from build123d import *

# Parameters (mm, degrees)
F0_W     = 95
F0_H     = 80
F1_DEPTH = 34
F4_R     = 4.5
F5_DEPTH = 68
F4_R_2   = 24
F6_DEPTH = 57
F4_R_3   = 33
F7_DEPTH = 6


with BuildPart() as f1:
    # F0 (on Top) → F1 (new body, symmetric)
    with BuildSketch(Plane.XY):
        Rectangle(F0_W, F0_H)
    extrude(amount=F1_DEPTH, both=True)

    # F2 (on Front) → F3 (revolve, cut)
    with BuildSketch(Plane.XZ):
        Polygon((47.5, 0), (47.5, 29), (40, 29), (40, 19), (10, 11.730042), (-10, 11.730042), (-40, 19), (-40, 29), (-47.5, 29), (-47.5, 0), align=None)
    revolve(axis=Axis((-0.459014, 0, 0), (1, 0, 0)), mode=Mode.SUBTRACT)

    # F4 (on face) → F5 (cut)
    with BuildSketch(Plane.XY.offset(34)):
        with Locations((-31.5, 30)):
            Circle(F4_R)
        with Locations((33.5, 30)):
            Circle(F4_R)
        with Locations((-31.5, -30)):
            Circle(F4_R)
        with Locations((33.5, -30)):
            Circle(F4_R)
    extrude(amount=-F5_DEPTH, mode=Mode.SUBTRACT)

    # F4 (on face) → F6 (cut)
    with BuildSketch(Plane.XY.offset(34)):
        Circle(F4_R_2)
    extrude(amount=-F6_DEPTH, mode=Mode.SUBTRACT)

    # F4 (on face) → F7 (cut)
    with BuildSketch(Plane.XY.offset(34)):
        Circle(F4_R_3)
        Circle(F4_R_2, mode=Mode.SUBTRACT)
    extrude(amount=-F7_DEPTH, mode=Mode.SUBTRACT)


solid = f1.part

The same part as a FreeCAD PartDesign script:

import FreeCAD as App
import Part
import Sketcher

doc = App.newDocument("Part")
body = doc.addObject("PartDesign::Body", "Body")

# Sketch on XY plane
sketch1 = body.newObject("Sketcher::SketchObject", "Sketch")
sketch1.AttachmentSupport = (doc.getObject("XY_Plane"), [""])
sketch1.MapMode = "FlatFace"
sketch1.addGeometry(Part.LineSegment(App.Vector(-48, 40, 0), App.Vector(-48, -40, 0)), False)
sketch1.addGeometry(Part.LineSegment(App.Vector(-48, -40, 0), App.Vector(48, -40, 0)), False)
sketch1.addGeometry(Part.LineSegment(App.Vector(48, -40, 0), App.Vector(48, 40, 0)), False)
sketch1.addGeometry(Part.LineSegment(App.Vector(48, 40, 0), App.Vector(-48, 40, 0)), False)
sketch1.addConstraint(Sketcher.Constraint("Coincident", 0, 2, 1, 1))
sketch1.addConstraint(Sketcher.Constraint("Coincident", 1, 2, 2, 1))
sketch1.addConstraint(Sketcher.Constraint("Coincident", 2, 2, 3, 1))
sketch1.addConstraint(Sketcher.Constraint("Coincident", 3, 2, 0, 1))
sketch1.addConstraint(Sketcher.Constraint("Vertical", 0))
sketch1.addConstraint(Sketcher.Constraint("Horizontal", 1))
sketch1.addConstraint(Sketcher.Constraint("Vertical", 2))
sketch1.addConstraint(Sketcher.Constraint("Horizontal", 3))
sketch1.addConstraint(Sketcher.Constraint("Symmetric", 0, 2, 2, 2, -1, 1))
sketch1.addConstraint(Sketcher.Constraint("DistanceX", 1, 1, 1, 2, 95.0))
sketch1.addConstraint(Sketcher.Constraint("DistanceY", 0, 2, 0, 1, 80.0))
pad1 = body.newObject("PartDesign::Pad", "Pad")
pad1.Profile = sketch1
pad1.Length = 68
pad1.Midplane = True

# Sketch on XZ plane
sketch2 = body.newObject("Sketcher::SketchObject", "Sketch001")
sketch2.AttachmentSupport = (doc.getObject("XZ_Plane"), [""])
sketch2.MapMode = "FlatFace"
sketch2.addGeometry(Part.LineSegment(App.Vector(48, 0, 0), App.Vector(48, 29, 0)), False)
sketch2.addGeometry(Part.LineSegment(App.Vector(48, 29, 0), App.Vector(40, 29, 0)), False)
sketch2.addGeometry(Part.LineSegment(App.Vector(40, 29, 0), App.Vector(40, 19, 0)), False)
sketch2.addGeometry(Part.LineSegment(App.Vector(40, 19, 0), App.Vector(10, 12, 0)), False)
sketch2.addGeometry(Part.LineSegment(App.Vector(10, 12, 0), App.Vector(-10, 12, 0)), False)
sketch2.addGeometry(Part.LineSegment(App.Vector(-10, 12, 0), App.Vector(-40, 19, 0)), False)
sketch2.addGeometry(Part.LineSegment(App.Vector(-40, 19, 0), App.Vector(-40, 29, 0)), False)
sketch2.addGeometry(Part.LineSegment(App.Vector(-40, 29, 0), App.Vector(-48, 29, 0)), False)
sketch2.addGeometry(Part.LineSegment(App.Vector(-48, 29, 0), App.Vector(-48, 0, 0)), False)
sketch2.addGeometry(Part.LineSegment(App.Vector(-48, 0, 0), App.Vector(48, 0, 0)), False)
sketch2.addConstraint(Sketcher.Constraint("Coincident", 0, 2, 1, 1))
sketch2.addConstraint(Sketcher.Constraint("Coincident", 1, 2, 2, 1))
sketch2.addConstraint(Sketcher.Constraint("Coincident", 2, 2, 3, 1))
sketch2.addConstraint(Sketcher.Constraint("Coincident", 3, 2, 4, 1))
sketch2.addConstraint(Sketcher.Constraint("Coincident", 4, 2, 5, 1))
sketch2.addConstraint(Sketcher.Constraint("Coincident", 5, 2, 6, 1))
sketch2.addConstraint(Sketcher.Constraint("Coincident", 6, 2, 7, 1))
sketch2.addConstraint(Sketcher.Constraint("Coincident", 7, 2, 8, 1))
sketch2.addConstraint(Sketcher.Constraint("Coincident", 8, 2, 9, 1))
sketch2.addConstraint(Sketcher.Constraint("Coincident", 9, 2, 0, 1))
sketch2.addConstraint(Sketcher.Constraint("Vertical", 0))
sketch2.addConstraint(Sketcher.Constraint("Horizontal", 1))
sketch2.addConstraint(Sketcher.Constraint("Vertical", 2))
sketch2.addConstraint(Sketcher.Constraint("Horizontal", 4))
sketch2.addConstraint(Sketcher.Constraint("Vertical", 6))
sketch2.addConstraint(Sketcher.Constraint("Horizontal", 7))
sketch2.addConstraint(Sketcher.Constraint("Vertical", 8))
sketch2.addConstraint(Sketcher.Constraint("Horizontal", 9))
sketch2.addConstraint(Sketcher.Constraint("Symmetric", 8, 2, 9, 2, -1, 1))
sketch2.addConstraint(Sketcher.Constraint("Symmetric", 2, 2, 5, 2, -2))
sketch2.addConstraint(Sketcher.Constraint("Horizontal", 1, 2, 6, 2))
sketch2.addConstraint(Sketcher.Constraint("Equal", 3, 5))
sketch2.addConstraint(Sketcher.Constraint("DistanceX", 4, 2, 4, 1, 20.0))
sketch2.addConstraint(Sketcher.Constraint("DistanceX", 9, 1, 9, 2, 95.0))
sketch2.addConstraint(Sketcher.Constraint("DistanceY", 0, 1, 0, 2, 29.0))
sketch2.addConstraint(Sketcher.Constraint("DistanceY", 2, 2, 2, 1, 10.0))
sketch2.addConstraint(Sketcher.Constraint("DistanceX", 1, 2, 1, 1, 7.5))
sketch2.addConstraint(Sketcher.Constraint("DistanceY", -1, 1, 3, 2, 11.730042))
groove = body.newObject("PartDesign::Groove", "Groove")
groove.Profile = sketch2
groove.ReferenceAxis = (sketch2, ["H_Axis"])
groove.Angle = 360

# Sketch on XY plane
sketch3 = body.newObject("Sketcher::SketchObject", "Sketch002")
sketch3.AttachmentSupport = (doc.getObject("XY_Plane"), [""])
sketch3.MapMode = "FlatFace"
sketch3.AttachmentOffset = App.Placement(App.Vector(0, 0, 34), App.Rotation())
sketch3.addGeometry(Part.Circle(App.Vector(-31.5, 30, 0), App.Vector(0, 0, 1), 4.5), False)
sketch3.addGeometry(Part.Circle(App.Vector(33.5, 30, 0), App.Vector(0, 0, 1), 4.5), False)
sketch3.addGeometry(Part.Circle(App.Vector(-31.5, -30, 0), App.Vector(0, 0, 1), 4.5), False)
sketch3.addGeometry(Part.Circle(App.Vector(33.5, -30, 0), App.Vector(0, 0, 1), 4.5), False)
sketch3.addConstraint(Sketcher.Constraint("Equal", 0, 1))
sketch3.addConstraint(Sketcher.Constraint("Equal", 1, 2))
sketch3.addConstraint(Sketcher.Constraint("Equal", 2, 3))
sketch3.addConstraint(Sketcher.Constraint("Symmetric", 0, 3, 2, 3, -1))
sketch3.addConstraint(Sketcher.Constraint("Symmetric", 1, 3, 3, 3, -1))
sketch3.addConstraint(Sketcher.Constraint("Horizontal", 0, 3, 1, 3))
sketch3.addConstraint(Sketcher.Constraint("Diameter", 0, 9.0))
sketch3.addConstraint(Sketcher.Constraint("DistanceY", -1, 1, 0, 3, 30.0))
sketch3.addConstraint(Sketcher.Constraint("DistanceX", 0, 3, 1, 3, 65.0))
sketch3.addConstraint(Sketcher.Constraint("DistanceX", 0, 3, -1, 1, 31.5))
pocket1 = body.newObject("PartDesign::Pocket", "Pocket")
pocket1.Profile = sketch3
pocket1.Length = 68

# Sketch on XY plane
sketch4 = body.newObject("Sketcher::SketchObject", "Sketch003")
sketch4.AttachmentSupport = (doc.getObject("XY_Plane"), [""])
sketch4.MapMode = "FlatFace"
sketch4.AttachmentOffset = App.Placement(App.Vector(0, 0, 34), App.Rotation())
sketch4.addGeometry(Part.Circle(App.Vector(0, 0, 0), App.Vector(0, 0, 1), 24), False)
sketch4.addConstraint(Sketcher.Constraint("Coincident", 0, 3, -1, 1))
sketch4.addConstraint(Sketcher.Constraint("Diameter", 0, 48.0))
pocket2 = body.newObject("PartDesign::Pocket", "Pocket001")
pocket2.Profile = sketch4
pocket2.Length = 57

# Sketch on XY plane
sketch5 = body.newObject("Sketcher::SketchObject", "Sketch004")
sketch5.AttachmentSupport = (doc.getObject("XY_Plane"), [""])
sketch5.MapMode = "FlatFace"
sketch5.AttachmentOffset = App.Placement(App.Vector(0, 0, 34), App.Rotation())
sketch5.addGeometry(Part.Circle(App.Vector(0, 0, 0), App.Vector(0, 0, 1), 33), False)
sketch5.addGeometry(Part.Circle(App.Vector(0, 0, 0), App.Vector(0, 0, 1), 24), False)
sketch5.addConstraint(Sketcher.Constraint("Coincident", 0, 3, -1, 1))
sketch5.addConstraint(Sketcher.Constraint("Coincident", 1, 3, -1, 1))
sketch5.addConstraint(Sketcher.Constraint("Diameter", 0, 66.0))
sketch5.addConstraint(Sketcher.Constraint("Diameter", 1, 48.0))
pocket3 = body.newObject("PartDesign::Pocket", "Pocket002")
pocket3.Profile = sketch5
pocket3.Length = 6

doc.recompute()
